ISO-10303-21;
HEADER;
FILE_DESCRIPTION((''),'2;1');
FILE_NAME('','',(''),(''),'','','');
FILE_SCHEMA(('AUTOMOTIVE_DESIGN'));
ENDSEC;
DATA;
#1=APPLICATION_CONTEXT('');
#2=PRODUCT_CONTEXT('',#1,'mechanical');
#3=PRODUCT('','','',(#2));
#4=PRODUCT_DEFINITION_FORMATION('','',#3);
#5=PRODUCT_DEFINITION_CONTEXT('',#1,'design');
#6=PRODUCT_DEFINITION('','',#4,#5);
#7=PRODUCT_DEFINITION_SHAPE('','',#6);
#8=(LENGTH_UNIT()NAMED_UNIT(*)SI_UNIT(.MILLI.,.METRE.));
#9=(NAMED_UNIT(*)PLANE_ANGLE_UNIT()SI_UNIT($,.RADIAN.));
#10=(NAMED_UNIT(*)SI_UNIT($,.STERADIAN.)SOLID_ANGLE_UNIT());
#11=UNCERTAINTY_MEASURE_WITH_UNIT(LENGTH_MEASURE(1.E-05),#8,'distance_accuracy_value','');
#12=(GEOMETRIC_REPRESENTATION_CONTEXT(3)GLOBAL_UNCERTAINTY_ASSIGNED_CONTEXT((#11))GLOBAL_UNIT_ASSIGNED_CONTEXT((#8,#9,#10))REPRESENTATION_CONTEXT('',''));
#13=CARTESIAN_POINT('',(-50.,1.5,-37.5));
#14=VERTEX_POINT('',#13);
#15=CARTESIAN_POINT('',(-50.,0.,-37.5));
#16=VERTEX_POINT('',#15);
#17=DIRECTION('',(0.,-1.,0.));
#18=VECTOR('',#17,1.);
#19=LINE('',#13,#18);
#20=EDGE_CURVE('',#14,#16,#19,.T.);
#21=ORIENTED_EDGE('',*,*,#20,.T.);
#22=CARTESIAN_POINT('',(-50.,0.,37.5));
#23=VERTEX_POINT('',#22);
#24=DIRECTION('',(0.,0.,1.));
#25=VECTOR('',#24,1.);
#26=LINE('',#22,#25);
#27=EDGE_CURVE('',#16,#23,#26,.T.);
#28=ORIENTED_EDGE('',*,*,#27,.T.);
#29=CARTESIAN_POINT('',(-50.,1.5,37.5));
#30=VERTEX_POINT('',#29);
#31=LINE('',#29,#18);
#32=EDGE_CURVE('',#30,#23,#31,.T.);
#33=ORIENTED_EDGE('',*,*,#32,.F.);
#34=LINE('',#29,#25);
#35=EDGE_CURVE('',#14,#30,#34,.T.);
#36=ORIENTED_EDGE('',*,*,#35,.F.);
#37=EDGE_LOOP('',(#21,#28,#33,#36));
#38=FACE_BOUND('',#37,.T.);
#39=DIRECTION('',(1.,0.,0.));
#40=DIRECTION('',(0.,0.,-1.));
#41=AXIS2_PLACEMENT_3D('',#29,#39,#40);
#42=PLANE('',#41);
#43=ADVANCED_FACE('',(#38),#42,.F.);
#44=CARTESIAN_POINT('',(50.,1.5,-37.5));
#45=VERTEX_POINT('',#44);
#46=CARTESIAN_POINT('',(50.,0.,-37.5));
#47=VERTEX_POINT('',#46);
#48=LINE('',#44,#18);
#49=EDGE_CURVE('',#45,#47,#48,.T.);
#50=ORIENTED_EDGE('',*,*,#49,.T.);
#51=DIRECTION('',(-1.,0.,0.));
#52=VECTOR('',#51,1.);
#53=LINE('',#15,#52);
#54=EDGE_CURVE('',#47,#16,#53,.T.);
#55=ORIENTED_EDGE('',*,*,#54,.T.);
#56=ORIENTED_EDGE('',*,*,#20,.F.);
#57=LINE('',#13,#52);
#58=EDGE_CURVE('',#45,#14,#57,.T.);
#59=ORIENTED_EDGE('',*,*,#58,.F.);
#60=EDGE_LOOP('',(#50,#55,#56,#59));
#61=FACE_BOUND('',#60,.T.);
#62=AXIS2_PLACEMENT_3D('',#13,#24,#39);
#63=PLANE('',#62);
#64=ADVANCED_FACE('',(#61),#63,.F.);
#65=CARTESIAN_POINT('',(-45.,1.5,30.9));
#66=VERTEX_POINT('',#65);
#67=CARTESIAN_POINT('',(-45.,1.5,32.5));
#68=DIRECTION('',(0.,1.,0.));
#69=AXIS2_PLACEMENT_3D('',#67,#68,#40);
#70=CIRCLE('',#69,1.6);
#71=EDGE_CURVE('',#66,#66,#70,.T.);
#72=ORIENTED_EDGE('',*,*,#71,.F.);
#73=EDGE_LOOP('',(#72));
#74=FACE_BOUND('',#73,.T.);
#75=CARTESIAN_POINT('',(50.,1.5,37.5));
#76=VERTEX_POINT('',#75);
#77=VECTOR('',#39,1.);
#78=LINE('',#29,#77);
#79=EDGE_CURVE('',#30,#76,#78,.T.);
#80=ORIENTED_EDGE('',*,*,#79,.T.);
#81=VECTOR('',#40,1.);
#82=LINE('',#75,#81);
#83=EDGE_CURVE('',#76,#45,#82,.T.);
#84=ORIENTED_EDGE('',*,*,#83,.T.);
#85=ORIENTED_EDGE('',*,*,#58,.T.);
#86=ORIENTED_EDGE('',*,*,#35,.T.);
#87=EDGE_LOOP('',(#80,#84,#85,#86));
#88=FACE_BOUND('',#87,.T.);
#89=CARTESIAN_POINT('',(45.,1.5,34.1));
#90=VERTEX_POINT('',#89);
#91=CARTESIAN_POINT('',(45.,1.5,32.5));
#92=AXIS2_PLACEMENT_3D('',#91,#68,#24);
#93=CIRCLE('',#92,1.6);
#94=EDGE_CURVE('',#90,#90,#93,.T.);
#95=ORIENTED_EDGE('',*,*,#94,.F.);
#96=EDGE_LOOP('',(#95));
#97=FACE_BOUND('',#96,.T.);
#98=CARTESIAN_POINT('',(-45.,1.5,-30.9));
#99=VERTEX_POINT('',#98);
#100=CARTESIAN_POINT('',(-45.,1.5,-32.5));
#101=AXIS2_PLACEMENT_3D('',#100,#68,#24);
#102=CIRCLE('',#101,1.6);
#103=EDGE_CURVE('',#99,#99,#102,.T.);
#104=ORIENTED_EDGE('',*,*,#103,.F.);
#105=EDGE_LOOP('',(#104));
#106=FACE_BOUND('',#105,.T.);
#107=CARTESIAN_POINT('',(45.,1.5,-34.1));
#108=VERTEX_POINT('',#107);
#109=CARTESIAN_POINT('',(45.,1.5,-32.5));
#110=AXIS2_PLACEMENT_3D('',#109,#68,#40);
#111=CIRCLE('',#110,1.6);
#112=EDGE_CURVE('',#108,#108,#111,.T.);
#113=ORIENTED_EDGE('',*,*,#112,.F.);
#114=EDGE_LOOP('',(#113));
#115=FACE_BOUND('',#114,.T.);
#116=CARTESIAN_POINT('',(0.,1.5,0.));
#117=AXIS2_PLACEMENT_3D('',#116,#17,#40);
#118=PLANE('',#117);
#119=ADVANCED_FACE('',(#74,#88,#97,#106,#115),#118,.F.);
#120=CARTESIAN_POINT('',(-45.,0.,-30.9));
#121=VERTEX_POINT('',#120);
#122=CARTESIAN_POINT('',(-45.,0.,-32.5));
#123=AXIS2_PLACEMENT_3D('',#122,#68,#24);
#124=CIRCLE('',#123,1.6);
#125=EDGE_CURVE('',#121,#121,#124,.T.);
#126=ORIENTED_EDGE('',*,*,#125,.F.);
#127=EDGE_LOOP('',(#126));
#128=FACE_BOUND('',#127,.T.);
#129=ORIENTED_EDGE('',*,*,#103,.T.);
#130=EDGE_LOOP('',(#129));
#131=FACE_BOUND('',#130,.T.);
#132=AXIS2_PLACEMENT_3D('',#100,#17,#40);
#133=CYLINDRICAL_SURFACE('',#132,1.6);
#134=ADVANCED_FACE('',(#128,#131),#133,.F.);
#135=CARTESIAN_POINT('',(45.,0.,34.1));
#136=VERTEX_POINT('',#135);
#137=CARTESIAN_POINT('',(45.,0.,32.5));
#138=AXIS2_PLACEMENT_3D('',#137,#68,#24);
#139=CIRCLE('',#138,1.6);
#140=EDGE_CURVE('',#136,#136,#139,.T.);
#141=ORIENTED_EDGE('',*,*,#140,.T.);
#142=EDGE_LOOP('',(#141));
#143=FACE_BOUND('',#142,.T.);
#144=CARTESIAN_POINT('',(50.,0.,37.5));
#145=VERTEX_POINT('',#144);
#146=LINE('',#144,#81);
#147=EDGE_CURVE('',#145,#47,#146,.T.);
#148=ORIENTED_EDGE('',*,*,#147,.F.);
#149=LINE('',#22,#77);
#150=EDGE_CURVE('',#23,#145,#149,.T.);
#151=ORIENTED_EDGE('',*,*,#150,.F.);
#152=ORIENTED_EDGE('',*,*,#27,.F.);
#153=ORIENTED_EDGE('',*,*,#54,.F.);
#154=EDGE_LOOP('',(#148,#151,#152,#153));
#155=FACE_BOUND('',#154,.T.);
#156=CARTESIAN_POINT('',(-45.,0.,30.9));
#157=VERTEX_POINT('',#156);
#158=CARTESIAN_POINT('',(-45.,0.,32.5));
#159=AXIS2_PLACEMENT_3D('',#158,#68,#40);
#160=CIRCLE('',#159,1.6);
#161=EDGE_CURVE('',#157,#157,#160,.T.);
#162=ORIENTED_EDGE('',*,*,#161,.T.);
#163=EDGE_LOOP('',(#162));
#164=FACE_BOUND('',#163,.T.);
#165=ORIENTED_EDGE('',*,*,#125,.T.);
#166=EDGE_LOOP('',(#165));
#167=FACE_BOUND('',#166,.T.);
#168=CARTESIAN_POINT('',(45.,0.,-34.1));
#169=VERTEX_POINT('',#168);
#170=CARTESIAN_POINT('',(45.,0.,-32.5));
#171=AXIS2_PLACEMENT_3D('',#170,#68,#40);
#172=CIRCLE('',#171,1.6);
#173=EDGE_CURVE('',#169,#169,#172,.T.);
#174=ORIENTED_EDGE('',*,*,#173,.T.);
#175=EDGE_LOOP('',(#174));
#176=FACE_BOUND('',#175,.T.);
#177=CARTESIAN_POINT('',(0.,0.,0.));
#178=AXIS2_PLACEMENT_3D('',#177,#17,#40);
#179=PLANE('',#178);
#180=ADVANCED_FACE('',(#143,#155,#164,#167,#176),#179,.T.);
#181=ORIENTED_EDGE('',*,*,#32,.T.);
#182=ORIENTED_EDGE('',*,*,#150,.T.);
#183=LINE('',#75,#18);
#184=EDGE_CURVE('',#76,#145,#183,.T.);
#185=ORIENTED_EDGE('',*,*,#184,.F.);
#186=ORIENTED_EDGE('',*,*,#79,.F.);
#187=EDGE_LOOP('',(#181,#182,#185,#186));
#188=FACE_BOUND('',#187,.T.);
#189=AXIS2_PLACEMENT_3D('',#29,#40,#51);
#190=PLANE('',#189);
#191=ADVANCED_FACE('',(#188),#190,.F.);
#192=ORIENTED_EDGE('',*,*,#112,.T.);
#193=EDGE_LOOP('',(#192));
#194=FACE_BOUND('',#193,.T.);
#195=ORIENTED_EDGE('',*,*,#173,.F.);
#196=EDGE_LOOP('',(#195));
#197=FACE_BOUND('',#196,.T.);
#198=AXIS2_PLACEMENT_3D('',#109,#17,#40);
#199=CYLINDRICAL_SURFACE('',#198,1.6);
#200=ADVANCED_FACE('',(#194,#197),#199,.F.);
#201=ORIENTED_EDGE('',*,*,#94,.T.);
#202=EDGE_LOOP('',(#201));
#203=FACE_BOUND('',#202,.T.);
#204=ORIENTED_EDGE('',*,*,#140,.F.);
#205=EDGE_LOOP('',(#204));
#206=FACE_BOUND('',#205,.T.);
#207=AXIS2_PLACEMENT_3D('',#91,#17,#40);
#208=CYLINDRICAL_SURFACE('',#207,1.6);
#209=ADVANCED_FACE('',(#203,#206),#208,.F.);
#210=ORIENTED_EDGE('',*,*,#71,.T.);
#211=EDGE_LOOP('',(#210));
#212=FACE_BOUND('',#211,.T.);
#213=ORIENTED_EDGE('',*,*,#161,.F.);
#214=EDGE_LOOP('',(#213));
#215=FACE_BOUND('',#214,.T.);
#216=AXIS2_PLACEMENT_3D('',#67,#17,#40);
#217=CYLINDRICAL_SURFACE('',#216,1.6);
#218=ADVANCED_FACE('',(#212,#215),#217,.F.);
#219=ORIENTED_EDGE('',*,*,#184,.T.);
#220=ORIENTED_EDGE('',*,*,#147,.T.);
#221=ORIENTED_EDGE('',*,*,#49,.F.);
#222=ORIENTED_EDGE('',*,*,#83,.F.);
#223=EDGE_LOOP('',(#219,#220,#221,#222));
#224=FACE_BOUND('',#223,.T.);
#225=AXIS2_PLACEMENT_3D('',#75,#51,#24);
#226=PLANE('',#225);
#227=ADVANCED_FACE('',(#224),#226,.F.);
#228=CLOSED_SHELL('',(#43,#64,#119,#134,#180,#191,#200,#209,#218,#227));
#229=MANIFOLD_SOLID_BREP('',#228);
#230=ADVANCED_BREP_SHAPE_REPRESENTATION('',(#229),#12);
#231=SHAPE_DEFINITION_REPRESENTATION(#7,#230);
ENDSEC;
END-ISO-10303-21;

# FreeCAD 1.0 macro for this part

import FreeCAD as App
import Part
import Sketcher

V = App.Vector
Q = App.Units.Quantity

doc = App.newDocument("Part")
body = doc.addObject("PartDesign::Body", "Body")

sketch1 = body.newObject("Sketcher::SketchObject", "Sketch")
sketch1.AttachmentSupport = (doc.getObject("XZ_Plane"), [""])
sketch1.MapMode = "FlatFace"
sketch1.addGeometry([
    Part.LineSegment(V(-50, -37.5, 0), V(-50, 37.5, 0)),
    Part.LineSegment(V(-50, 37.5, 0), V(50, 37.5, 0)),
    Part.LineSegment(V(50, 37.5, 0), V(50, -37.5, 0)),
    Part.LineSegment(V(50, -37.5, 0), V(-50, -37.5, 0)),
    Part.Circle(V(-45, 32.5, 0), V(0, 0, 1), 1.6),
    Part.Circle(V(45, 32.5, 0), V(0, 0, 1), 1.6),
    Part.Circle(V(-45, -32.5, 0), V(0, 0, 1), 1.6),
    Part.Circle(V(45, -32.5, 0), V(0, 0, 1), 1.6),
], False)
sketch1.addConstraint([
    Sketcher.Constraint("Coincident", 0, 2, 1, 1),
    Sketcher.Constraint("Coincident", 1, 2, 2, 1),
    Sketcher.Constraint("Coincident", 2, 2, 3, 1),
    Sketcher.Constraint("Coincident", 3, 2, 0, 1),
    Sketcher.Constraint("Vertical", 0),
    Sketcher.Constraint("Horizontal", 1),
    Sketcher.Constraint("Vertical", 2),
    Sketcher.Constraint("Horizontal", 3),
    Sketcher.Constraint("Equal", 4, 5),
    Sketcher.Constraint("Equal", 5, 6),
    Sketcher.Constraint("Equal", 6, 7),
    Sketcher.Constraint("Symmetric", 5, 3, 6, 3, -1, 1),
    Sketcher.Constraint("Symmetric", 4, 3, 7, 3, -1, 1),
    Sketcher.Constraint("Symmetric", 0, 2, 2, 2, -1, 1),
    Sketcher.Constraint("Symmetric", 4, 3, 5, 3, -2),
    Sketcher.Constraint("Diameter", 4, Q("3.2 mm")),
    Sketcher.Constraint("DistanceX", 1, 1, 1, 2, Q("100 mm")),
    Sketcher.Constraint("DistanceY", 0, 1, 0, 2, Q("75 mm")),
    Sketcher.Constraint("DistanceX", 4, 3, -1, 1, Q("45 mm")),
    Sketcher.Constraint("DistanceY", 6, 3, 4, 3, Q("65 mm")),
])
pad1 = body.newObject("PartDesign::Pad", "Pad")
pad1.Profile = sketch1
pad1.Length = 1.5
pad1.Reversed = True

doc.recompute()
